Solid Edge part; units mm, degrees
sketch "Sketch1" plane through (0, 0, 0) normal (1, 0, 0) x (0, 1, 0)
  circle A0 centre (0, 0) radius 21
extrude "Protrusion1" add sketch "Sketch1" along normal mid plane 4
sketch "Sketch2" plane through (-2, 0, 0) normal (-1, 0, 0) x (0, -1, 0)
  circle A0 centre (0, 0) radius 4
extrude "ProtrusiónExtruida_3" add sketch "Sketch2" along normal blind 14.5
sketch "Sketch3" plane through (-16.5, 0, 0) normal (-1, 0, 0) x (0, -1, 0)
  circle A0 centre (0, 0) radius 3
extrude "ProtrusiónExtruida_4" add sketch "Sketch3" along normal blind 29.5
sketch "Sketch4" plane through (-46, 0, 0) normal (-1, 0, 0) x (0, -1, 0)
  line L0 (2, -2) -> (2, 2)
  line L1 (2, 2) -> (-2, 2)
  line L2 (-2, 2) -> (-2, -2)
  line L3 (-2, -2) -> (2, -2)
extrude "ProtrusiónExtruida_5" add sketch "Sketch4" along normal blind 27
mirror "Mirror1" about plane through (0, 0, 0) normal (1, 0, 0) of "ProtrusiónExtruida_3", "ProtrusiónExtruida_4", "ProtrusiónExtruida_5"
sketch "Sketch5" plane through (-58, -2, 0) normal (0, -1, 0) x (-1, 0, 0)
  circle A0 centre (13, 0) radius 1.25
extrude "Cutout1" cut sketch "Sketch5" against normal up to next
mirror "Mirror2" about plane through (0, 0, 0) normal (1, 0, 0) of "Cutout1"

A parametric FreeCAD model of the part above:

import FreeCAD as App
import Part
import Sketcher
from FreeCAD import Vector


def add_polygon(sketch, points):
    """Adds a closed chain of lines whose ends are joined by coincident constraints."""
    first, n = sketch.GeometryCount, len(points)
    for a, b in zip(points, points[1:] + points[:1]):
        sketch.addGeometry(Part.LineSegment(App.Vector(*a, 0), App.Vector(*b, 0)), False)
    for i in range(n):
        sketch.addConstraint(Sketcher.Constraint("Coincident", first + i, 2, first + (i + 1) % n, 1))

doc = App.newDocument("Part")
params = doc.addObject("Spreadsheet::Sheet", "Params")
for row, (alias, value) in enumerate([
    ("sketch1_diameter", "42 mm"),
    ("pad1_length", "4 mm"),
    ("sketch2_diameter", "8 mm"),
    ("pad2_length", "14.5 mm"),
    ("sketch3_diameter", "6 mm"),
    ("pad3_length", "29.5 mm"),
    ("sketch4_width", "4 mm"),
    ("pad4_length", "27 mm"),
    ("sketch5_diameter", "2.5 mm"),
], start=1):
    params.set(f"A{row}", alias)
    params.set(f"B{row}", "=" + value)
    params.setAlias(f"B{row}", alias)

body = doc.addObject("PartDesign::Body", "Body")

sketch1 = body.newObject("Sketcher::SketchObject", "Sketch")
sketch1.AttachmentSupport = (doc.getObject("YZ_Plane"), [""])
sketch1.MapMode = "FlatFace"
sketch1.addGeometry(Part.Circle(Vector(0, 0, 0), Vector(0, 0, 1), 21), False)
sketch1.addConstraint([
    Sketcher.Constraint("Coincident", 0, 3, -1, 1),
    Sketcher.Constraint("Diameter", 0, 42.0),
])
sketch1.setExpression("Constraints[1]", "Params.sketch1_diameter")
pad1 = body.newObject("PartDesign::Pad", "Pad")
pad1.Profile = sketch1
pad1.setExpression("Length", "Params.pad1_length")
pad1.Midplane = True

sketch2 = body.newObject("Sketcher::SketchObject", "Sketch001")
sketch2.AttachmentSupport = (doc.getObject("YZ_Plane"), [""])
sketch2.MapMode = "FlatFace"
sketch2.AttachmentOffset = App.Placement(Vector(0, 0, -2), App.Rotation())
sketch2.addGeometry(Part.Circle(Vector(0, 0, 0), Vector(0, 0, 1), 4), False)
sketch2.addConstraint([
    Sketcher.Constraint("Coincident", 0, 3, -1, 1),
    Sketcher.Constraint("Diameter", 0, 8.0),
])
sketch2.setExpression("Constraints[1]", "Params.sketch2_diameter")
pad2 = body.newObject("PartDesign::Pad", "Pad001")
pad2.Profile = sketch2
pad2.setExpression("Length", "Params.pad2_length")
pad2.Reversed = True

sketch3 = body.newObject("Sketcher::SketchObject", "Sketch002")
sketch3.AttachmentSupport = (doc.getObject("YZ_Plane"), [""])
sketch3.MapMode = "FlatFace"
sketch3.AttachmentOffset = App.Placement(Vector(0, 0, -16.5), App.Rotation())
sketch3.addGeometry(Part.Circle(Vector(0, 0, 0), Vector(0, 0, 1), 3), False)
sketch3.addConstraint([
    Sketcher.Constraint("Coincident", 0, 3, -1, 1),
    Sketcher.Constraint("Diameter", 0, 6.0),
])
sketch3.setExpression("Constraints[1]", "Params.sketch3_diameter")
pad3 = body.newObject("PartDesign::Pad", "Pad002")
pad3.Profile = sketch3
pad3.setExpression("Length", "Params.pad3_length")
pad3.Reversed = True

sketch4 = body.newObject("Sketcher::SketchObject", "Sketch003")
sketch4.AttachmentSupport = (doc.getObject("YZ_Plane"), [""])
sketch4.MapMode = "FlatFace"
sketch4.AttachmentOffset = App.Placement(Vector(0, 0, -46), App.Rotation())
add_polygon(sketch4, [(2, -2), (-2, -2), (-2, 2), (2, 2)])
sketch4.addConstraint([
    Sketcher.Constraint("Horizontal", 0),
    Sketcher.Constraint("Vertical", 1),
    Sketcher.Constraint("Horizontal", 2),
    Sketcher.Constraint("Vertical", 3),
    Sketcher.Constraint("Symmetric", 0, 2, 2, 2, -1, 1),
    Sketcher.Constraint("Equal", 2, 1),
    Sketcher.Constraint("DistanceX", 0, 2, 0, 1, 4.0),
])
sketch4.setExpression("Constraints[10]", "Params.sketch4_width")
pad4 = body.newObject("PartDesign::Pad", "Pad003")
pad4.Profile = sketch4
pad4.setExpression("Length", "Params.pad4_length")
pad4.Reversed = True
doc.recompute()

mirrored = body.newObject("PartDesign::Mirrored", "Mirrored")
mirrored.Originals = [pad2, pad3, pad4]
mirrored.MirrorPlane = (doc.getObject("YZ_Plane"), [""])
body.Tip = mirrored

sketch5 = body.newObject("Sketcher::SketchObject", "Sketch004")
sketch5.AttachmentSupport = (doc.getObject("XZ_Plane"), [""])
sketch5.MapMode = "FlatFace"
sketch5.AttachmentOffset = App.Placement(Vector(0, 0, 2), App.Rotation())
sketch5.addGeometry(Part.Circle(Vector(-71, 0, 0), Vector(0, 0, 1), 1.2), False)
sketch5.addConstraint([
    Sketcher.Constraint("PointOnObject", 0, 3, -1),
    Sketcher.Constraint("Diameter", 0, 2.5),
    Sketcher.Constraint("DistanceX", 0, 3, -1, 1, 71.0),
])
sketch5.setExpression("Constraints[1]", "Params.sketch5_diameter")
pocket1 = body.newObject("PartDesign::Pocket", "Pocket")
pocket1.Profile = sketch5
pocket1.Type = "UpToFirst"
doc.recompute()

mirrored2 = body.newObject("PartDesign::Mirrored", "Mirrored001")
mirrored2.Originals = [pocket1]
mirrored2.MirrorPlane = (doc.getObject("YZ_Plane"), [""])
body.Tip = mirrored2

doc.recompute()
